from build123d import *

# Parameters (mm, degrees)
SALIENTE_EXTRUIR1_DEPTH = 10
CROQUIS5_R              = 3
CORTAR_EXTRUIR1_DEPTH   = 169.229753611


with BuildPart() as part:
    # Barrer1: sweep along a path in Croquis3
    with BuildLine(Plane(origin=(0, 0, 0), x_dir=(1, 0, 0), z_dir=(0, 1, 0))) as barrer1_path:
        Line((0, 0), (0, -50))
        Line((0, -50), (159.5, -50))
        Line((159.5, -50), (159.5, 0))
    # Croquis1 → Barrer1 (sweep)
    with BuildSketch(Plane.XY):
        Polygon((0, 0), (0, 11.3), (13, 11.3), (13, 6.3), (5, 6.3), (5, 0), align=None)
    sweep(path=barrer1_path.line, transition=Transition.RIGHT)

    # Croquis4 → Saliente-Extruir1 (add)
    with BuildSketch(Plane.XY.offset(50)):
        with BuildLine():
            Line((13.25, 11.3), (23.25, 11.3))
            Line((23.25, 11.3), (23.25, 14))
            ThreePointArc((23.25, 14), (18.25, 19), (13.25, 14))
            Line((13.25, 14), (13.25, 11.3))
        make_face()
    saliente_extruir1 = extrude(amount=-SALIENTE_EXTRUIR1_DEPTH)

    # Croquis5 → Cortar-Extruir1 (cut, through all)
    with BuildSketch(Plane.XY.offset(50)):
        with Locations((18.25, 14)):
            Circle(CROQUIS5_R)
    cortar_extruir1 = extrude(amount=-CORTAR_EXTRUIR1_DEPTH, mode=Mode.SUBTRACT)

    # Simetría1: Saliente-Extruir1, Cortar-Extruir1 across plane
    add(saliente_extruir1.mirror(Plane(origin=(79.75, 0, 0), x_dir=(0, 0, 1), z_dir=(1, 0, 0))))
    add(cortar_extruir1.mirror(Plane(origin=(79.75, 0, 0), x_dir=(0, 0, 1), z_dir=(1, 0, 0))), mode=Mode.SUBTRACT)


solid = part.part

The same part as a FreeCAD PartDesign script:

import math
import FreeCAD as App
import Part
import Sketcher


def add_polygon(sketch, points):
    """Adds a closed chain of lines whose ends are joined by coincident constraints."""
    first, n = sketch.GeometryCount, len(points)
    for a, b in zip(points, points[1:] + points[:1]):
        sketch.addGeometry(Part.LineSegment(App.Vector(*a, 0), App.Vector(*b, 0)), False)
    for i in range(n):
        sketch.addConstraint(Sketcher.Constraint("Coincident", first + i, 2, first + (i + 1) % n, 1))

doc = App.newDocument("Part")
body = doc.addObject("PartDesign::Body", "Body")

sketch1 = body.newObject("Sketcher::SketchObject", "Sketch")
sketch1.AttachmentSupport = (doc.getObject("XY_Plane"), [""])
sketch1.MapMode = "FlatFace"
add_polygon(sketch1, [(0, 11), (0, 0), (5, 0), (5, 6), (13, 6), (13, 11)])
sketch1.addConstraint([
    Sketcher.Constraint("Vertical", 0),
    Sketcher.Constraint("Horizontal", 1),
    Sketcher.Constraint("Vertical", 2),
    Sketcher.Constraint("Horizontal", 3),
    Sketcher.Constraint("Vertical", 4),
    Sketcher.Constraint("Horizontal", 5),
    Sketcher.Constraint("Coincident", 0, 2, -1, 1),
    Sketcher.Constraint("Equal", 1, 4),
    Sketcher.Constraint("DistanceX", 1, 1, 1, 2, 5.0),
    Sketcher.Constraint("DistanceX", 3, 1, 3, 2, 8.0),
    Sketcher.Constraint("DistanceY", 0, 2, 0, 1, 11.3),
])

sketch2 = body.newObject("Sketcher::SketchObject", "Sketch001")
sketch2.AttachmentSupport = (doc.getObject("XZ_Plane"), [""])
sketch2.MapMode = "FlatFace"
sketch2.addGeometry([
    Part.LineSegment(App.Vector(0, 0, 0), App.Vector(0, 50, 0)),
    Part.LineSegment(App.Vector(0, 50, 0), App.Vector(160, 50, 0)),
    Part.LineSegment(App.Vector(160, 50, 0), App.Vector(160, 0, 0)),
], False)
sketch2.addConstraint([
    Sketcher.Constraint("Coincident", 0, 2, 1, 1),
    Sketcher.Constraint("Coincident", 1, 2, 2, 1),
    Sketcher.Constraint("Vertical", 0),
    Sketcher.Constraint("Horizontal", 1),
    Sketcher.Constraint("Vertical", 2),
    Sketcher.Constraint("Coincident", 0, 1, -1, 1),
    Sketcher.Constraint("PointOnObject", 2, 2, -1),
    Sketcher.Constraint("DistanceY", 0, 1, 0, 2, 50.0),
    Sketcher.Constraint("DistanceX", 1, 1, 1, 2, 159.5),
])
doc.recompute()

additivepipe = body.newObject("PartDesign::AdditivePipe", "AdditivePipe")
additivepipe.Profile = sketch1
additivepipe.Spine = (sketch2, ["Edge1", "Edge2", "Edge3"])
additivepipe.Transition = "Right corner"

sketch3 = body.newObject("Sketcher::SketchObject", "Sketch002")
sketch3.AttachmentSupport = (doc.getObject("XY_Plane"), [""])
sketch3.MapMode = "FlatFace"
sketch3.AttachmentOffset = App.Placement(App.Vector(0, 0, 50), App.Rotation())
sketch3.addGeometry([
    Part.LineSegment(App.Vector(13.2, 11.3, 0), App.Vector(23.2, 11.3, 0)),
    Part.LineSegment(App.Vector(23.2, 11.3, 0), App.Vector(23.2, 14, 0)),
    Part.ArcOfCircle(Part.Circle(App.Vector(18.2, 14, 0), App.Vector(0, 0, 1), 5), math.radians(0), math.radians(180)),
    Part.LineSegment(App.Vector(13.2, 14, 0), App.Vector(13.2, 11.3, 0)),
], False)
sketch3.addConstraint([
    Sketcher.Constraint("Coincident", 0, 2, 1, 1),
    Sketcher.Constraint("Tangent", 1, 2, 2, 1),
    Sketcher.Constraint("Tangent", 2, 2, 3, 1),
    Sketcher.Constraint("Coincident", 3, 2, 0, 1),
    Sketcher.Constraint("Horizontal", 0),
    Sketcher.Constraint("Vertical", 1),
    Sketcher.Constraint("Vertical", 3),
    Sketcher.Constraint("Radius", 2, 5.0),
    Sketcher.Constraint("DistanceY", 1, 1, 1, 2, 2.7),
    Sketcher.Constraint("DistanceY", -1, 1, 2, 3, 14.0),
    Sketcher.Constraint("DistanceX", -1, 1, 2, 3, 18.25),
])
pad1 = body.newObject("PartDesign::Pad", "Pad")
pad1.Profile = sketch3
pad1.Length = 10
pad1.Reversed = True

sketch4 = body.newObject("Sketcher::SketchObject", "Sketch003")
sketch4.AttachmentSupport = (doc.getObject("XY_Plane"), [""])
sketch4.MapMode = "FlatFace"
sketch4.AttachmentOffset = App.Placement(App.Vector(0, 0, 50), App.Rotation())
sketch4.addGeometry(Part.Circle(App.Vector(18.2, 14, 0), App.Vector(0, 0, 1), 3), False)
sketch4.addConstraint([
    Sketcher.Constraint("Diameter", 0, 6.0),
    Sketcher.Constraint("DistanceY", -1, 1, 0, 3, 14.0),
    Sketcher.Constraint("DistanceX", -1, 1, 0, 3, 18.25),
])
pocket1 = body.newObject("PartDesign::Pocket", "Pocket")
pocket1.Profile = sketch4
pocket1.Type = "ThroughAll"
doc.recompute()

datumplane = body.newObject("PartDesign::Plane", "DatumPlane")
datumplane.AttachmentSupport = (doc.getObject("YZ_Plane"), [""])
datumplane.MapMode = "FlatFace"
datumplane.AttachmentOffset = App.Placement(App.Vector(0, 0, 79.75), App.Rotation())
mirrored = body.newObject("PartDesign::Mirrored", "Mirrored")
mirrored.Originals = [pad1, pocket1]
mirrored.MirrorPlane = (datumplane, [""])
body.Tip = mirrored

doc.recompute()
